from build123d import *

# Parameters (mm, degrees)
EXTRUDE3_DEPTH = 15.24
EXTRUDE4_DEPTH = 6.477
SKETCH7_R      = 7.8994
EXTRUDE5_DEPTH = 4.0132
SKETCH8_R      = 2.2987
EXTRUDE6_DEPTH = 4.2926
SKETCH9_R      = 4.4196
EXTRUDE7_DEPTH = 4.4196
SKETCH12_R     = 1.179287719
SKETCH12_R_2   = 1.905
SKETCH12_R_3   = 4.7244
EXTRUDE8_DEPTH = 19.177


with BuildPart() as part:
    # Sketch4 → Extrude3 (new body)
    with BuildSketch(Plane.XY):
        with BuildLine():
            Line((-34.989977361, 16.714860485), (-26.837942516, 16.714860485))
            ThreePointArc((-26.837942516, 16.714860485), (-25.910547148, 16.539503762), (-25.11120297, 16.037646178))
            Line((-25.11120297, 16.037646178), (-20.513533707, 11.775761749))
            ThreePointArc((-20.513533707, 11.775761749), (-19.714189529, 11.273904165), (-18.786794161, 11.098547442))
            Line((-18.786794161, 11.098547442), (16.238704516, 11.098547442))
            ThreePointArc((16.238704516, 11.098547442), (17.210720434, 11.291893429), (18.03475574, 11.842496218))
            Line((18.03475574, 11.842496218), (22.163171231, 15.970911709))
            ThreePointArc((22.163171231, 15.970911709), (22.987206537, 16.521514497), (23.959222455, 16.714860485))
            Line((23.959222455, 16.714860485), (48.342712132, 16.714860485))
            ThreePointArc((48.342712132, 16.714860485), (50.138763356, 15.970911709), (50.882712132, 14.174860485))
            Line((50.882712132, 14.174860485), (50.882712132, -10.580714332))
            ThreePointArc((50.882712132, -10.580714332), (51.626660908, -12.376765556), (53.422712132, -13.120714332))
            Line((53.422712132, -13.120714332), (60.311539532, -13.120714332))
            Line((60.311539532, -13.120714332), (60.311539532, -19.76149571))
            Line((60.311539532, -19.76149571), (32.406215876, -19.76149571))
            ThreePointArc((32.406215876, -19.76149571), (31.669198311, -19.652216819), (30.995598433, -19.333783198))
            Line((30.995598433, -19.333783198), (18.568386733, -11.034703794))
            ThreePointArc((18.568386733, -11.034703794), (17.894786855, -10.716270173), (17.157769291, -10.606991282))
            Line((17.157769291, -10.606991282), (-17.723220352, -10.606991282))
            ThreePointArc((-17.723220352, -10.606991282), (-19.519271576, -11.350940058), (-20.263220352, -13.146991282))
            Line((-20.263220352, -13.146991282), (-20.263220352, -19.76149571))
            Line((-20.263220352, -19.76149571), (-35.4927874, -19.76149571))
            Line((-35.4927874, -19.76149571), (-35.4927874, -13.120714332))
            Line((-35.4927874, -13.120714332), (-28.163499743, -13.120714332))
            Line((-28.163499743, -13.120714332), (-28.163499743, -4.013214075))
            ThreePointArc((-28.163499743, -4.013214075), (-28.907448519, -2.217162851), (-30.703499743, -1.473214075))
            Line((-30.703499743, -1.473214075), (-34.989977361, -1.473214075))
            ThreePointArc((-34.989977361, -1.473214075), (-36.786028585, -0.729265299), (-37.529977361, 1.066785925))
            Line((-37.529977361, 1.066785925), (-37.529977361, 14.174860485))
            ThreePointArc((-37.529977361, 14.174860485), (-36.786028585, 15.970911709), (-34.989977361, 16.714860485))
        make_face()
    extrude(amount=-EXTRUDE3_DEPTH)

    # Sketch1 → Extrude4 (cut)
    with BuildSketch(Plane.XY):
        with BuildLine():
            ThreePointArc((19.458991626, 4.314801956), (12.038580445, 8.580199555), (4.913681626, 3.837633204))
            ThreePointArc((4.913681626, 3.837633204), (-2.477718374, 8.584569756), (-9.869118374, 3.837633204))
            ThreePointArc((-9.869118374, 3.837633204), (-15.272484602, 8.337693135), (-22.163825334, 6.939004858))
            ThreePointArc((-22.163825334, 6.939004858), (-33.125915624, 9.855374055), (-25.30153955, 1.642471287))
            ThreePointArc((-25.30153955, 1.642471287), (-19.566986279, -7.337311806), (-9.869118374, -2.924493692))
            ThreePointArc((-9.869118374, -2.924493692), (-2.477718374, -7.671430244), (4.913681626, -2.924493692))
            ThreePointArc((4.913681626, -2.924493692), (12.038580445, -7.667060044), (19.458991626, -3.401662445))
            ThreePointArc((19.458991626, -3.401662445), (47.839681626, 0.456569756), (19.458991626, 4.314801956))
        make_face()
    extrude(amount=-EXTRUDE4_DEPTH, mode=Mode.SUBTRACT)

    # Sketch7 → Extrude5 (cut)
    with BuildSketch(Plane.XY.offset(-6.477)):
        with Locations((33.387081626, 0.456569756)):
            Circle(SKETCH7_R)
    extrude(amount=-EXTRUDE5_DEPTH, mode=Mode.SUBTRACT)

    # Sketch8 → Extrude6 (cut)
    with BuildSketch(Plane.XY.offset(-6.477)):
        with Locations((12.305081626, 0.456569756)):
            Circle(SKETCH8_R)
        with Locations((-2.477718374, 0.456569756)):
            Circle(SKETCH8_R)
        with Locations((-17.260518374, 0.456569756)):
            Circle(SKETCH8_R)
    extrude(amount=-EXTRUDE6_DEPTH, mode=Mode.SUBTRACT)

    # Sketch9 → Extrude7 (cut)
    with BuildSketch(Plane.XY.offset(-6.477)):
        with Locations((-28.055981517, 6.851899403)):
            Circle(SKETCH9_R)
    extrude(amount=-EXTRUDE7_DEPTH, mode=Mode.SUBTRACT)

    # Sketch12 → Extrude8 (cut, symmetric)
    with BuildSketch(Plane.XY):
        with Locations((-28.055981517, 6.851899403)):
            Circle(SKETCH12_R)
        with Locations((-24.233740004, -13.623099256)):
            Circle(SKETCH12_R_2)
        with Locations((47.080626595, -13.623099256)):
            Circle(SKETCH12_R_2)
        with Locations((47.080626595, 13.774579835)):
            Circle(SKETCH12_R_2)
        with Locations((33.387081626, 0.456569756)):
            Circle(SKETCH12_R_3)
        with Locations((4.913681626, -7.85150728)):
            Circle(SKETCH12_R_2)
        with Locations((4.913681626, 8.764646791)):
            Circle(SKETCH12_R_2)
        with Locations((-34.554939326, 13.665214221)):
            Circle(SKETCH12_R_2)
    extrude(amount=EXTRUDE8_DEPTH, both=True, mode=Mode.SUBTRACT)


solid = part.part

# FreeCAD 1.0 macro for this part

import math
import FreeCAD as App
import Part
import Sketcher
Q = App.Units.Quantity

doc = App.newDocument("Part")
body = doc.addObject("PartDesign::Body", "Body")

# Sketch on XY plane
sketch1 = body.newObject("Sketcher::SketchObject", "Sketch")
sketch1.AttachmentSupport = (doc.getObject("XY_Plane"), [""])
sketch1.MapMode = "FlatFace"
sketch1.addGeometry([
    Part.LineSegment(App.Vector(-26.8, 16.7, 0), App.Vector(-35, 16.7, 0)),  # 0
    Part.ArcOfCircle(Part.Circle(App.Vector(-35, 14.2, 0), App.Vector(0, 0, 1), 2.5), math.radians(90), math.radians(180)),  # 1
    Part.LineSegment(App.Vector(-37.5, 14.2, 0), App.Vector(-37.5, 1.1, 0)),  # 2
    Part.ArcOfCircle(Part.Circle(App.Vector(-35, 1.1, 0), App.Vector(0, 0, 1), 2.5), math.radians(-180), math.radians(-90)),  # 3
    Part.LineSegment(App.Vector(-35, -1.5, 0), App.Vector(-30.7, -1.5, 0)),  # 4
    Part.ArcOfCircle(Part.Circle(App.Vector(-30.7, -4, 0), App.Vector(0, 0, 1), 2.5), math.radians(0), math.radians(90)),  # 5
    Part.LineSegment(App.Vector(-28.2, -4, 0), App.Vector(-28.2, -13.1, 0)),  # 6
    Part.LineSegment(App.Vector(-28.2, -13.1, 0), App.Vector(-35.5, -13.1, 0)),  # 7
    Part.LineSegment(App.Vector(-35.5, -13.1, 0), App.Vector(-35.5, -19.8, 0)),  # 8
    Part.LineSegment(App.Vector(-35.5, -19.8, 0), App.Vector(-20.3, -19.8, 0)),  # 9
    Part.LineSegment(App.Vector(-20.3, -19.8, 0), App.Vector(-20.3, -13.1, 0)),  # 10
    Part.ArcOfCircle(Part.Circle(App.Vector(-17.7, -13.1, 0), App.Vector(0, 0, 1), 2.5), math.radians(90), math.radians(180)),  # 11
    Part.LineSegment(App.Vector(-17.7, -10.6, 0), App.Vector(17.2, -10.6, 0)),  # 12
    Part.ArcOfCircle(Part.Circle(App.Vector(17.2, -13.1, 0), App.Vector(0, 0, 1), 2.5), math.radians(56), math.radians(90)),  # 13
    Part.LineSegment(App.Vector(18.6, -11, 0), App.Vector(31, -19.3, 0)),  # 14
    Part.ArcOfCircle(Part.Circle(App.Vector(32.4, -17.2, 0), App.Vector(0, 0, 1), 2.5), math.radians(-124), math.radians(-90)),  # 15
    Part.LineSegment(App.Vector(32.4, -19.8, 0), App.Vector(60.3, -19.8, 0)),  # 16
    Part.LineSegment(App.Vector(60.3, -19.8, 0), App.Vector(60.3, -13.1, 0)),  # 17
    Part.LineSegment(App.Vector(60.3, -13.1, 0), App.Vector(53.4, -13.1, 0)),  # 18
    Part.ArcOfCircle(Part.Circle(App.Vector(53.4, -10.6, 0), App.Vector(0, 0, 1), 2.5), math.radians(-180), math.radians(-90)),  # 19
    Part.LineSegment(App.Vector(50.9, -10.6, 0), App.Vector(50.9, 14.2, 0)),  # 20
    Part.ArcOfCircle(Part.Circle(App.Vector(48.3, 14.2, 0), App.Vector(0, 0, 1), 2.5), math.radians(0), math.radians(90)),  # 21
    Part.LineSegment(App.Vector(48.3, 16.7, 0), App.Vector(24, 16.7, 0)),  # 22
    Part.ArcOfCircle(Part.Circle(App.Vector(24, 14.2, 0), App.Vector(0, 0, 1), 2.5), math.radians(90), math.radians(135)),  # 23
    Part.LineSegment(App.Vector(22.2, 16, 0), App.Vector(18, 11.8, 0)),  # 24
    Part.ArcOfCircle(Part.Circle(App.Vector(16.2, 13.6, 0), App.Vector(0, 0, 1), 2.5), math.radians(-90), math.radians(-45)),  # 25
    Part.LineSegment(App.Vector(16.2, 11.1, 0), App.Vector(-18.8, 11.1, 0)),  # 26
    Part.ArcOfCircle(Part.Circle(App.Vector(-18.8, 13.6, 0), App.Vector(0, 0, 1), 2.5), math.radians(-133), math.radians(-90)),  # 27
    Part.LineSegment(App.Vector(-20.5, 11.8, 0), App.Vector(-25.1, 16, 0)),  # 28
    Part.ArcOfCircle(Part.Circle(App.Vector(-26.8, 14.2, 0), App.Vector(0, 0, 1), 2.5), math.radians(47), math.radians(90)),  # 29
], False)
sketch1.addConstraint([
    Sketcher.Constraint("Tangent", 0, 2, 1, 1),
    Sketcher.Constraint("Tangent", 1, 2, 2, 1),
    Sketcher.Constraint("Tangent", 2, 2, 3, 1),
    Sketcher.Constraint("Tangent", 3, 2, 4, 1),
    Sketcher.Constraint("Tangent", 4, 2, 5, 2),
    Sketcher.Constraint("Tangent", 5, 1, 6, 1),
    Sketcher.Constraint("Coincident", 6, 2, 7, 1),
    Sketcher.Constraint("Coincident", 7, 2, 8, 1),
    Sketcher.Constraint("Coincident", 8, 2, 9, 1),
    Sketcher.Constraint("Coincident", 9, 2, 10, 1),
    Sketcher.Constraint("Tangent", 10, 2, 11, 2),
    Sketcher.Constraint("Tangent", 11, 1, 12, 1),
    Sketcher.Constraint("Tangent", 12, 2, 13, 2),
    Sketcher.Constraint("Tangent", 13, 1, 14, 1),
    Sketcher.Constraint("Tangent", 14, 2, 15, 1),
    Sketcher.Constraint("Tangent", 15, 2, 16, 1),
    Sketcher.Constraint("Coincident", 16, 2, 17, 1),
    Sketcher.Constraint("Coincident", 17, 2, 18, 1),
    Sketcher.Constraint("Tangent", 18, 2, 19, 2),
    Sketcher.Constraint("Tangent", 19, 1, 20, 1),
    Sketcher.Constraint("Tangent", 20, 2, 21, 1),
    Sketcher.Constraint("Tangent", 21, 2, 22, 1),
    Sketcher.Constraint("Tangent", 22, 2, 23, 1),
    Sketcher.Constraint("Tangent", 23, 2, 24, 1),
    Sketcher.Constraint("Tangent", 24, 2, 25, 2),
    Sketcher.Constraint("Tangent", 25, 1, 26, 1),
    Sketcher.Constraint("Tangent", 26, 2, 27, 2),
    Sketcher.Constraint("Tangent", 27, 1, 28, 1),
    Sketcher.Constraint("Tangent", 28, 2, 29, 1),
    Sketcher.Constraint("Tangent", 29, 2, 0, 1),
    Sketcher.Constraint("Horizontal", 0),
    Sketcher.Constraint("Vertical", 2),
    Sketcher.Constraint("Horizontal", 4),
    Sketcher.Constraint("Vertical", 6),
    Sketcher.Constraint("Horizontal", 7),
    Sketcher.Constraint("Vertical", 8),
    Sketcher.Constraint("Horizontal", 9),
    Sketcher.Constraint("Vertical", 10),
    Sketcher.Constraint("Horizontal", 12),
    Sketcher.Constraint("Horizontal", 16),
    Sketcher.Constraint("Vertical", 17),
    Sketcher.Constraint("Horizontal", 18),
    Sketcher.Constraint("Vertical", 20),
    Sketcher.Constraint("Horizontal", 22),
    Sketcher.Constraint("Horizontal", 26),
    Sketcher.Constraint("Equal", 1, 3),
    Sketcher.Constraint("Equal", 3, 5),
    Sketcher.Constraint("Equal", 5, 11),
    Sketcher.Constraint("Equal", 11, 13),
    Sketcher.Constraint("Equal", 13, 15),
    Sketcher.Constraint("Equal", 15, 19),
    Sketcher.Constraint("Equal", 19, 21),
    Sketcher.Constraint("Equal", 21, 23),
    Sketcher.Constraint("Equal", 23, 25),
    Sketcher.Constraint("Equal", 25, 27),
    Sketcher.Constraint("Equal", 27, 29),
    Sketcher.Constraint("Horizontal", 1, 3, 21, 3),
    Sketcher.Constraint("Horizontal", 9, 2, 15, 2),
    Sketcher.Constraint("Horizontal", 7, 2, 17, 2),
    Sketcher.Constraint("Radius", 1, Q("0.1 in")),
    Sketcher.Constraint("Angle", 24, Q("-135 deg")),
    Sketcher.Constraint("DistanceX", 26, 2, 26, 1, Q("35.025499 mm")),
    Sketcher.Constraint("DistanceY", 6, 2, 6, 1, Q("9.1075 mm")),
    Sketcher.Constraint("DistanceX", 11, 3, 15, 3, Q("1.9735999 in")),
    Sketcher.Constraint("DistanceX", 12, 1, 12, 2, Q("34.88099 mm")),
    Sketcher.Constraint("DistanceX", 22, 2, 22, 1, Q("24.38349 mm")),
    Sketcher.Constraint("DistanceY", 8, 2, 8, 1, Q("6.640781 mm")),
    Sketcher.Constraint("DistanceX", 5, 3, -1, 1, Q("30.7035 mm")),
    Sketcher.Constraint("DistanceX", -1, 1, 14, 2, Q("30.995598 mm")),
    Sketcher.Constraint("DistanceY", 27, 1, 29, 3, Q("2.399099 mm")),
    Sketcher.Constraint("Distance", 14, Q("14.943571 mm")),
    Sketcher.Constraint("Distance", 24, Q("5.838461 mm")),
    Sketcher.Constraint("DistanceX", 0, 2, 0, 1, Q("8.152035 mm")),
    Sketcher.Constraint("DistanceX", 4, 1, 4, 2, Q("4.286478 mm")),
    Sketcher.Constraint("DistanceX", 7, 2, 7, 1, Q("7.329288 mm")),
    Sketcher.Constraint("DistanceX", 16, 1, 16, 2, Q("27.905324 mm")),
    Sketcher.Constraint("DistanceY", 2, 2, 2, 1, Q("13.108075 mm")),
    Sketcher.Constraint("DistanceY", -1, 1, 1, 3, Q("14.17486 mm")),
])
pad1 = body.newObject("PartDesign::Pad", "Pad")
pad1.Profile = sketch1
pad1.Length = Q("0.6 in")
pad1.Reversed = True

# Sketch on XY plane
sketch2 = body.newObject("Sketcher::SketchObject", "Sketch001")
sketch2.AttachmentSupport = (doc.getObject("XY_Plane"), [""])
sketch2.MapMode = "FlatFace"
sketch2.addGeometry([
    Part.ArcOfCircle(Part.Circle(App.Vector(12, 0, 0), App.Vector(0, 0, 1), 8), math.radians(28), math.radians(155)),  # 0
    Part.ArcOfCircle(Part.Circle(App.Vector(-2, 0, 0), App.Vector(0, 0, 1), 8), math.radians(25), math.radians(155)),  # 1
    Part.ArcOfCircle(Part.Circle(App.Vector(-17, 0, 0), App.Vector(0, 0, 1), 8), math.radians(25), math.radians(127)),  # 2
    Part.ArcOfCircle(Part.Circle(App.Vector(-28, 7, 0), App.Vector(0, 0, 1), 6), math.radians(1), math.radians(298)),  # 3
    Part.ArcOfCircle(Part.Circle(App.Vector(-17, 0, 0), App.Vector(0, 0, 1), 8), math.radians(172), math.radians(335)),  # 4
    Part.ArcOfCircle(Part.Circle(App.Vector(-2, 0, 0), App.Vector(0, 0, 1), 8), math.radians(-155), math.radians(-25)),  # 5
    Part.ArcOfCircle(Part.Circle(App.Vector(12, 0, 0), App.Vector(0, 0, 1), 8), math.radians(-155), math.radians(-28)),  # 6
    Part.ArcOfCircle(Part.Circle(App.Vector(33, 0, 0), App.Vector(0, 0, 1), 14), math.radians(-165), math.radians(165)),  # 7
], False)
sketch2.addConstraint([
    Sketcher.Constraint("Coincident", 0, 2, 1, 1),
    Sketcher.Constraint("Coincident", 1, 2, 2, 1),
    Sketcher.Constraint("Coincident", 2, 2, 3, 1),
    Sketcher.Constraint("Coincident", 3, 2, 4, 1),
    Sketcher.Constraint("Coincident", 4, 2, 5, 1),
    Sketcher.Constraint("Coincident", 5, 2, 6, 1),
    Sketcher.Constraint("Coincident", 6, 2, 7, 1),
    Sketcher.Constraint("Coincident", 7, 2, 0, 1),
    Sketcher.Constraint("Coincident", 4, 3, 2, 3),
    Sketcher.Constraint("Coincident", 5, 3, 1, 3),
    Sketcher.Constraint("Coincident", 6, 3, 0, 3),
    Sketcher.Constraint("Equal", 0, 1),
    Sketcher.Constraint("Equal", 1, 2),
    Sketcher.Constraint("Equal", 2, 4),
    Sketcher.Constraint("Equal", 4, 5),
    Sketcher.Constraint("Equal", 5, 6),
    Sketcher.Constraint("Horizontal", 0, 3, 1, 3),
    Sketcher.Constraint("Horizontal", 1, 3, 2, 3),
    Sketcher.Constraint("Horizontal", 6, 3, 7, 3),
    Sketcher.Constraint("Horizontal", 0, 2, 1, 2),
    Sketcher.Constraint("Radius", 0, Q("0.32 in")),
    Sketcher.Constraint("Radius", 3, Q("0.232 in")),
    Sketcher.Constraint("Radius", 7, Q("0.569 in")),
    Sketcher.Constraint("DistanceX", 0, 3, 7, 3, Q("0.83 in")),
    Sketcher.Constraint("DistanceX", 1, 3, 0, 3, Q("0.582 in")),
    Sketcher.Constraint("DistanceY", -1, 1, 3, 3, Q("6.851899 mm")),
    Sketcher.Constraint("DistanceY", -1, 1, 7, 2, Q("4.314802 mm")),
    Sketcher.Constraint("DistanceY", 4, 3, 3, 2, Q("1.185902 mm")),
    Sketcher.Constraint("DistanceX", -1, 1, 0, 3, Q("12.305082 mm")),
])
pocket1 = body.newObject("PartDesign::Pocket", "Pocket")
pocket1.Profile = sketch2
pocket1.Length = Q("0.255 in")

# Sketch on XY plane
sketch3 = body.newObject("Sketcher::SketchObject", "Sketch002")
sketch3.AttachmentSupport = (doc.getObject("XY_Plane"), [""])
sketch3.MapMode = "FlatFace"
sketch3.AttachmentOffset = App.Placement(App.Vector(0, 0, -0.255 * 25.4), App.Rotation())
sketch3.addGeometry(Part.Circle(App.Vector(33, 0, 0), App.Vector(0, 0, 1), 8), False)
sketch3.addConstraint([
    Sketcher.Constraint("Diameter", 0, Q("0.622 in")),
    Sketcher.Constraint("DistanceX", -1, 1, 0, 3, Q("33.387082 mm")),
    Sketcher.Constraint("DistanceY", -1, 1, 0, 3, Q("0.45657 mm")),
])
pocket2 = body.newObject("PartDesign::Pocket", "Pocket001")
pocket2.Profile = sketch3
pocket2.Length = Q("0.158 in")

# Sketch on XY plane
sketch4 = body.newObject("Sketcher::SketchObject", "Sketch003")
sketch4.AttachmentSupport = (doc.getObject("XY_Plane"), [""])
sketch4.MapMode = "FlatFace"
sketch4.AttachmentOffset = App.Placement(App.Vector(0, 0, -0.255 * 25.4), App.Rotation())
sketch4.addGeometry([
    Part.Circle(App.Vector(12.3, 0.5, 0), App.Vector(0, 0, 1), 2.3),
    Part.Circle(App.Vector(-2.5, 0.5, 0), App.Vector(0, 0, 1), 2.3),
    Part.Circle(App.Vector(-17.3, 0.5, 0), App.Vector(0, 0, 1), 2.3),
], False)
sketch4.addConstraint([
    Sketcher.Constraint("Equal", 0, 1),
    Sketcher.Constraint("Equal", 1, 2),
    Sketcher.Constraint("Horizontal", 0, 3, 1, 3),
    Sketcher.Constraint("Horizontal", 1, 3, 2, 3),
    Sketcher.Constraint("Diameter", 0, Q("0.181 in")),
    Sketcher.Constraint("DistanceX", 1, 3, 0, 3, Q("0.582 in")),
    Sketcher.Constraint("DistanceX", 2, 3, 1, 3, Q("0.582 in")),
    Sketcher.Constraint("DistanceX", -1, 1, 0, 3, Q("12.305082 mm")),
    Sketcher.Constraint("DistanceY", -1, 1, 0, 3, Q("0.45657 mm")),
])
pocket3 = body.newObject("PartDesign::Pocket", "Pocket002")
pocket3.Profile = sketch4
pocket3.Length = Q("0.169 in")

# Sketch on XY plane
sketch5 = body.newObject("Sketcher::SketchObject", "Sketch004")
sketch5.AttachmentSupport = (doc.getObject("XY_Plane"), [""])
sketch5.MapMode = "FlatFace"
sketch5.AttachmentOffset = App.Placement(App.Vector(0, 0, -0.255 * 25.4), App.Rotation())
sketch5.addGeometry(Part.Circle(App.Vector(-28.1, 6.9, 0), App.Vector(0, 0, 1), 4.4), False)
sketch5.addConstraint([
    Sketcher.Constraint("Diameter", 0, Q("0.348 in")),
    Sketcher.Constraint("DistanceY", -1, 1, 0, 3, Q("6.851899 mm")),
    Sketcher.Constraint("DistanceX", 0, 3, -1, 1, Q("28.055982 mm")),
])
pocket4 = body.newObject("PartDesign::Pocket", "Pocket003")
pocket4.Profile = sketch5
pocket4.Length = Q("0.174 in")

# Sketch on XY plane
sketch6 = body.newObject("Sketcher::SketchObject", "Sketch005")
sketch6.AttachmentSupport = (doc.getObject("XY_Plane"), [""])
sketch6.MapMode = "FlatFace"
sketch6.addGeometry([
    Part.Circle(App.Vector(-28.1, 6.9, 0), App.Vector(0, 0, 1), 1.2),  # 0
    Part.Circle(App.Vector(-24.2, -13.6, 0), App.Vector(0, 0, 1), 1.9),  # 1
    Part.Circle(App.Vector(47.1, -13.6, 0), App.Vector(0, 0, 1), 1.9),  # 2
    Part.Circle(App.Vector(47.1, 13.8, 0), App.Vector(0, 0, 1), 1.9),  # 3
    Part.Circle(App.Vector(33.4, 0.5, 0), App.Vector(0, 0, 1), 4.7),  # 4
    Part.Circle(App.Vector(4.9, -7.9, 0), App.Vector(0, 0, 1), 1.9),  # 5
    Part.Circle(App.Vector(4.9, 8.8, 0), App.Vector(0, 0, 1), 1.9),  # 6
    Part.Circle(App.Vector(-34.6, 13.7, 0), App.Vector(0, 0, 1), 1.9),  # 7
], False)
sketch6.addConstraint([
    Sketcher.Constraint("Equal", 1, 2),
    Sketcher.Constraint("Equal", 2, 3),
    Sketcher.Constraint("Equal", 3, 5),
    Sketcher.Constraint("Equal", 5, 6),
    Sketcher.Constraint("Equal", 6, 7),
    Sketcher.Constraint("Horizontal", 1, 3, 2, 3),
    Sketcher.Constraint("Vertical", 2, 3, 3, 3),
    Sketcher.Constraint("Vertical", 5, 3, 6, 3),
    Sketcher.Constraint("Diameter", 1, Q("0.15 in")),
    Sketcher.Constraint("Diameter", 4, Q("0.372 in")),
    Sketcher.Constraint("DistanceX", 5, 3, 4, 3, Q("1.121 in")),
    Sketcher.Constraint("Diameter", 0, Q("2.358575 mm")),
    Sketcher.Constraint("DistanceY", -1, 1, 0, 3, Q("6.851899 mm")),
    Sketcher.Constraint("DistanceY", 1, 3, -1, 1, Q("13.623099 mm")),
    Sketcher.Constraint("DistanceX", 7, 3, 1, 3, Q("10.321199 mm")),
    Sketcher.Constraint("DistanceX", 0, 3, -1, 1, Q("28.055982 mm")),
    Sketcher.Constraint("DistanceX", 1, 3, -1, 1, Q("24.23374 mm")),
    Sketcher.Constraint("DistanceY", -1, 1, 3, 3, Q("13.77458 mm")),
    Sketcher.Constraint("DistanceX", -1, 1, 4, 3, Q("33.387082 mm")),
    Sketcher.Constraint("DistanceY", -1, 1, 4, 3, Q("0.45657 mm")),
    Sketcher.Constraint("DistanceX", 0, 3, 2, 3, Q("75.136608 mm")),
    Sketcher.Constraint("DistanceY", 1, 3, 5, 3, Q("5.771592 mm")),
    Sketcher.Constraint("DistanceY", 5, 3, 7, 3, Q("21.516722 mm")),
    Sketcher.Constraint("DistanceY", -1, 1, 6, 3, Q("8.764647 mm")),
])
pocket5 = body.newObject("PartDesign::Pocket", "Pocket004")
pocket5.Profile = sketch6
pocket5.Length = Q("1.51 in")
pocket5.Midplane = True

doc.recompute()
